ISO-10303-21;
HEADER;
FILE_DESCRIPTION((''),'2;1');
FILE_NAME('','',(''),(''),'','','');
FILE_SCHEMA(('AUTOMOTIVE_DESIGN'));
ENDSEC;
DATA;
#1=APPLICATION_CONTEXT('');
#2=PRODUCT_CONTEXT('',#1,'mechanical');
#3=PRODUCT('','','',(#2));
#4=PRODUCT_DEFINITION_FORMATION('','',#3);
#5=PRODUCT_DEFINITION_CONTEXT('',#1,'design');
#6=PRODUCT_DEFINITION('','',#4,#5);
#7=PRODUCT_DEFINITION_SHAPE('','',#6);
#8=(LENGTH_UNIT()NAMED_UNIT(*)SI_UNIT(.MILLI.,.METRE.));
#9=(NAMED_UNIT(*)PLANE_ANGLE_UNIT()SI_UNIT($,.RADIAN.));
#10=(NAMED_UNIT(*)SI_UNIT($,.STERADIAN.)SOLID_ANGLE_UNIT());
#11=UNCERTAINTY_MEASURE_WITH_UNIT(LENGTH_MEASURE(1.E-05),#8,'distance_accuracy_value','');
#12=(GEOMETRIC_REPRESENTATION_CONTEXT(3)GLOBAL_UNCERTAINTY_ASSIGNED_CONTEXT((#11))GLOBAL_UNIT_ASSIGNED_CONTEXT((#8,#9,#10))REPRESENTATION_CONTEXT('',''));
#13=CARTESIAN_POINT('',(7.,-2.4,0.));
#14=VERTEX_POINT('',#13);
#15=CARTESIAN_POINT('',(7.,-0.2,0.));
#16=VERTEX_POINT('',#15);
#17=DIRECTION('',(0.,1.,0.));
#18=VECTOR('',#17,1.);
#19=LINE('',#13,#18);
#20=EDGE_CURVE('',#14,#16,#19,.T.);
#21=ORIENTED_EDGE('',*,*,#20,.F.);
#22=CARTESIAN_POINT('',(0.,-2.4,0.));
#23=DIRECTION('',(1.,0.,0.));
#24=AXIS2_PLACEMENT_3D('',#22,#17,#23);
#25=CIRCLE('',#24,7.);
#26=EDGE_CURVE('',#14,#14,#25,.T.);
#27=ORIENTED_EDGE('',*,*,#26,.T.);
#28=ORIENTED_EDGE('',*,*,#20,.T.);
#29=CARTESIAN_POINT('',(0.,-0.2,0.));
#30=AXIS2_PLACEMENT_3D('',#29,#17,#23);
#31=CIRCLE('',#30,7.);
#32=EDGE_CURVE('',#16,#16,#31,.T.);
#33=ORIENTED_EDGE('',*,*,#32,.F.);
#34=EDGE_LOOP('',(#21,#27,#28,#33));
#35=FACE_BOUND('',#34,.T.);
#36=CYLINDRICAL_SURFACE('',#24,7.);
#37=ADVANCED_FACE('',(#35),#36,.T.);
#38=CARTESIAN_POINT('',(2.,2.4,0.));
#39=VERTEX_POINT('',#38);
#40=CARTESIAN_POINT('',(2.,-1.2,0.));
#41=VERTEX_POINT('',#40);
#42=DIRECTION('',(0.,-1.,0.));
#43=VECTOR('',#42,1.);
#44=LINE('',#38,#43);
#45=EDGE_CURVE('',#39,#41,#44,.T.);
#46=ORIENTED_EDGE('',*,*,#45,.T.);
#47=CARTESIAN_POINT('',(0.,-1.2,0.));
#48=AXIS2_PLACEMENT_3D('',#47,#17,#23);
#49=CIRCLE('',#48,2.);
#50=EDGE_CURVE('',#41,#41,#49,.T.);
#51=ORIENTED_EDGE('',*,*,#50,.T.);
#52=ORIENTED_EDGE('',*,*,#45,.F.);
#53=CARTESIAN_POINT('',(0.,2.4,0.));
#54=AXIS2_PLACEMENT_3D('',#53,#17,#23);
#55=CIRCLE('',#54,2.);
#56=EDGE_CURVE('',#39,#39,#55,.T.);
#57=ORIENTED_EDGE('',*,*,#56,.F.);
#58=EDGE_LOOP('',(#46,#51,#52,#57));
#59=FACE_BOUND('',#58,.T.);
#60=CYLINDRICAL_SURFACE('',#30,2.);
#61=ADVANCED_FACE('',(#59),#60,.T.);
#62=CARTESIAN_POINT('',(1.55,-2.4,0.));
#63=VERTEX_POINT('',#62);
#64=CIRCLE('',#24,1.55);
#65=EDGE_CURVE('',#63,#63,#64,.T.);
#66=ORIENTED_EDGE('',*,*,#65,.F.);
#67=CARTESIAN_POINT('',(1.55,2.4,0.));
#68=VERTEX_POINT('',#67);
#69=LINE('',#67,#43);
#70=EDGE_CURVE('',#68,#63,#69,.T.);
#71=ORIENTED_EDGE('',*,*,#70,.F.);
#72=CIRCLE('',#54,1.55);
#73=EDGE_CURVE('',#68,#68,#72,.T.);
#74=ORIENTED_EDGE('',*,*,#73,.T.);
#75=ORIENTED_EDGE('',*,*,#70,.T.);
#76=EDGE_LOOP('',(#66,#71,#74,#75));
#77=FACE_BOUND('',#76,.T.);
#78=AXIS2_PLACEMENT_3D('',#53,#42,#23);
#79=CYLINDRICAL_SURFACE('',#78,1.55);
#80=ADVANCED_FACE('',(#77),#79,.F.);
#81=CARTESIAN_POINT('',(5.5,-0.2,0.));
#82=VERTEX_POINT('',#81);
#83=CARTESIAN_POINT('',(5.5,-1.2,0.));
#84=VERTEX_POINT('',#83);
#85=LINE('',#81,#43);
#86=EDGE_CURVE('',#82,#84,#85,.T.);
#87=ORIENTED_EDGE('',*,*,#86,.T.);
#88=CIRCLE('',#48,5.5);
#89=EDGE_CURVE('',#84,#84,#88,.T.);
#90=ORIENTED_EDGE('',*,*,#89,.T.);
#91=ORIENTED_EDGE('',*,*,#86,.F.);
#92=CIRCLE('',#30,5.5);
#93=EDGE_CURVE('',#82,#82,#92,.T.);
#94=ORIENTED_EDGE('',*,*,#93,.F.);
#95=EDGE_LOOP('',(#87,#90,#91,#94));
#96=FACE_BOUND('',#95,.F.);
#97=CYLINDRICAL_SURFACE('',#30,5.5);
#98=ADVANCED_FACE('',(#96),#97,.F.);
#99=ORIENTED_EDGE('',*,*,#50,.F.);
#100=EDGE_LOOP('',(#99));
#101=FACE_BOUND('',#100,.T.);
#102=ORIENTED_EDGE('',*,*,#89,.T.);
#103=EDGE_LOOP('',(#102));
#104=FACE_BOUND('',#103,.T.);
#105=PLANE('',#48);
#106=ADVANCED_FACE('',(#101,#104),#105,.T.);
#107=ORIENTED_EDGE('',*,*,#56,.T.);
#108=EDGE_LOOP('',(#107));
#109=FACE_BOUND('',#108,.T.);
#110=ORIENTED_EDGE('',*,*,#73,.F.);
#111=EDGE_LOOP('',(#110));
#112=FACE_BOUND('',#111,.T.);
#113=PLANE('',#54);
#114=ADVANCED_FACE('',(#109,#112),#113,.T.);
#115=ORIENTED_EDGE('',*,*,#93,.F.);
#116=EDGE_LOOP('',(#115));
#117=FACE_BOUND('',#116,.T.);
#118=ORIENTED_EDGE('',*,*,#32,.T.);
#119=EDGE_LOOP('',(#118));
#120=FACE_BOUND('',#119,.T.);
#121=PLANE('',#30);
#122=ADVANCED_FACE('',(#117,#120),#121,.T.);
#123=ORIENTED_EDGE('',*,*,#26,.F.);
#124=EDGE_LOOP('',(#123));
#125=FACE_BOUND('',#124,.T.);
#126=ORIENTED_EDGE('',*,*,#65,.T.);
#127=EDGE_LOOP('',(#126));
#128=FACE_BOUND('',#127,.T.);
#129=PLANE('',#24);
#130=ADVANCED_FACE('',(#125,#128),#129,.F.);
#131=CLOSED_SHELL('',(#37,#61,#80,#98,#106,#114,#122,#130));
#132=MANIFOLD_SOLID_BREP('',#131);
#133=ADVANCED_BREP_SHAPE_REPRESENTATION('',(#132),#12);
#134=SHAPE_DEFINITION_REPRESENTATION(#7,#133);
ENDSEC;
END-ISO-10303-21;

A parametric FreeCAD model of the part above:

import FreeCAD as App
import Part
import Sketcher
Q = App.Units.Quantity


def add_polygon(sketch, points):
    """Adds a closed chain of lines whose ends are joined by coincident constraints."""
    first, n = sketch.GeometryCount, len(points)
    for a, b in zip(points, points[1:] + points[:1]):
        sketch.addGeometry(Part.LineSegment(App.Vector(*a, 0), App.Vector(*b, 0)), False)
    for i in range(n):
        sketch.addConstraint(Sketcher.Constraint("Coincident", first + i, 2, first + (i + 1) % n, 1))

doc = App.newDocument("Part")
params = doc.addObject("Spreadsheet::Sheet", "Params")
for row, (alias, value) in enumerate([
    ("sketch1_height", "2.2 mm"),
    ("sketch1_height2", "2.6 mm"),
    ("revolution_angle", "360 deg"),
    ("sketch2_diameter", "11 mm"),
    ("sketch2_diameter2", "4 mm"),
    ("pocket1_length", "1 mm"),
], start=1):
    params.set(f"A{row}", alias)
    params.set(f"B{row}", "=" + value)
    params.setAlias(f"B{row}", alias)

body = doc.addObject("PartDesign::Body", "Body")

sketch1 = body.newObject("Sketcher::SketchObject", "Sketch")
sketch1.AttachmentSupport = (doc.getObject("XY_Plane"), [""])
sketch1.MapMode = "FlatFace"
add_polygon(sketch1, [(2, 2.4), (1.55, 2.4), (1.55, -2.4), (7, -2.4), (7, -0.2), (2, -0.2)])
sketch1.addConstraint([
    Sketcher.Constraint("Horizontal", 0),
    Sketcher.Constraint("Vertical", 1),
    Sketcher.Constraint("Horizontal", 2),
    Sketcher.Constraint("Vertical", 3),
    Sketcher.Constraint("Horizontal", 4),
    Sketcher.Constraint("Vertical", 5),
    Sketcher.Constraint("DistanceY", 3, 1, 3, 2, Q("2.2 mm")),
    Sketcher.Constraint("DistanceY", 5, 1, 5, 2, Q("2.6 mm")),
    Sketcher.Constraint("DistanceX", -1, 1, 2, 2, Q("7 mm")),
    Sketcher.Constraint("DistanceX", -1, 1, 4, 2, Q("2 mm")),
    Sketcher.Constraint("DistanceX", -1, 1, 0, 2, Q("1.55 mm")),
    Sketcher.Constraint("DistanceY", -1, 1, 0, 2, Q("2.4 mm")),
])
sketch1.setExpression("Constraints[12]", "Params.sketch1_height")
sketch1.setExpression("Constraints[13]", "Params.sketch1_height2")
revolution = body.newObject("PartDesign::Revolution", "Revolution")
revolution.Profile = sketch1
revolution.ReferenceAxis = (sketch1, ["V_Axis"])
revolution.setExpression("Angle", "Params.revolution_angle")

sketch2 = body.newObject("Sketcher::SketchObject", "Sketch001")
sketch2.AttachmentSupport = (doc.getObject("XZ_Plane"), [""])
sketch2.MapMode = "FlatFace"
sketch2.AttachmentOffset = App.Placement(App.Vector(0, 0, 0.2), App.Rotation())
sketch2.addGeometry([
    Part.Circle(App.Vector(0, 0, 0), App.Vector(0, 0, 1), 5.5),
    Part.Circle(App.Vector(0, 0, 0), App.Vector(0, 0, 1), 2),
], False)
sketch2.addConstraint([
    Sketcher.Constraint("Coincident", 0, 3, -1, 1),
    Sketcher.Constraint("Coincident", 1, 3, -1, 1),
    Sketcher.Constraint("Diameter", 0, Q("11 mm")),
    Sketcher.Constraint("Diameter", 1, Q("4 mm")),
])
sketch2.setExpression("Constraints[2]", "Params.sketch2_diameter")
sketch2.setExpression("Constraints[3]", "Params.sketch2_diameter2")
pocket1 = body.newObject("PartDesign::Pocket", "Pocket")
pocket1.Profile = sketch2
pocket1.setExpression("Length", "Params.pocket1_length")
pocket1.Reversed = True

doc.recompute()
